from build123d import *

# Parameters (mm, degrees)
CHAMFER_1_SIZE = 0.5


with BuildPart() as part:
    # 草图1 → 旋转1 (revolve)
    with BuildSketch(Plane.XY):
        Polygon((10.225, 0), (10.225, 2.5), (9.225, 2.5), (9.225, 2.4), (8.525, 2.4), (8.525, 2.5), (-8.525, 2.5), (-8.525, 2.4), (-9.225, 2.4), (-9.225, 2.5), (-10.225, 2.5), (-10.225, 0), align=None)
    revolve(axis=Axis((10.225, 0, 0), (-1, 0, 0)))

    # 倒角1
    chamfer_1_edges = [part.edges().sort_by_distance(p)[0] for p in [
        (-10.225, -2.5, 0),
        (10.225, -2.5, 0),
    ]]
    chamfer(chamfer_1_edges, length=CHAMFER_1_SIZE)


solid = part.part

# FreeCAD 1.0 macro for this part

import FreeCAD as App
import Part
import Sketcher
Q = App.Units.Quantity


def edges_at(feature, points):
    """Names of the edges that pass closest to the given points."""
    edges = feature.Shape.Edges
    near = lambda p: min(range(len(edges)), key=lambda i: edges[i].distToShape(Part.Vertex(*p))[0])
    return sorted({f"Edge{near(p) + 1}" for p in points})

doc = App.newDocument("Part")
params = doc.addObject("Spreadsheet::Sheet", "Params")
for row, (alias, value) in enumerate([
    ("sketch1_width", "1 mm"),
    ("sketch1_width2", "0.7 mm"),
    ("sketch1_height", "2.5 mm"),
    ("sketch1_height2", "0.1 mm"),
    ("sketch1_width3", "17.05 mm"),
    ("revolution_angle", "360 deg"),
    ("chamfer_size", "0.5 mm"),
], start=1):
    params.set(f"A{row}", alias)
    params.set(f"B{row}", "=" + value)
    params.setAlias(f"B{row}", alias)

body = doc.addObject("PartDesign::Body", "Body")

# Sketch on XY plane
sketch1 = doc.addObject("Sketcher::SketchObject", "Sketch")
body.addObject(sketch1)
sketch1.AttachmentSupport = (doc.XY_Plane, [""])
sketch1.MapMode = "FlatFace"
sketch1.addGeometry([
    Part.LineSegment(App.Vector(10.22, 0, 0), App.Vector(10.22, 2.5, 0)),  # 0
    Part.LineSegment(App.Vector(10.22, 2.5, 0), App.Vector(9.22, 2.5, 0)),  # 1
    Part.LineSegment(App.Vector(9.22, 2.5, 0), App.Vector(9.22, 2.4, 0)),  # 2
    Part.LineSegment(App.Vector(9.22, 2.4, 0), App.Vector(8.53, 2.4, 0)),  # 3
    Part.LineSegment(App.Vector(8.53, 2.4, 0), App.Vector(8.53, 2.5, 0)),  # 4
    Part.LineSegment(App.Vector(8.53, 2.5, 0), App.Vector(-8.53, 2.5, 0)),  # 5
    Part.LineSegment(App.Vector(-8.53, 2.5, 0), App.Vector(-8.53, 2.4, 0)),  # 6
    Part.LineSegment(App.Vector(-8.53, 2.4, 0), App.Vector(-9.22, 2.4, 0)),  # 7
    Part.LineSegment(App.Vector(-9.22, 2.4, 0), App.Vector(-9.22, 2.5, 0)),  # 8
    Part.LineSegment(App.Vector(-9.22, 2.5, 0), App.Vector(-10.22, 2.5, 0)),  # 9
    Part.LineSegment(App.Vector(-10.22, 2.5, 0), App.Vector(-10.22, 0, 0)),  # 10
    Part.LineSegment(App.Vector(-10.22, 0, 0), App.Vector(10.22, 0, 0)),  # 11
], False)
sketch1.addConstraint([
    Sketcher.Constraint("Coincident", 0, 2, 1, 1),
    Sketcher.Constraint("Coincident", 1, 2, 2, 1),
    Sketcher.Constraint("Coincident", 2, 2, 3, 1),
    Sketcher.Constraint("Coincident", 3, 2, 4, 1),
    Sketcher.Constraint("Coincident", 4, 2, 5, 1),
    Sketcher.Constraint("Coincident", 5, 2, 6, 1),
    Sketcher.Constraint("Coincident", 6, 2, 7, 1),
    Sketcher.Constraint("Coincident", 7, 2, 8, 1),
    Sketcher.Constraint("Coincident", 8, 2, 9, 1),
    Sketcher.Constraint("Coincident", 9, 2, 10, 1),
    Sketcher.Constraint("Coincident", 10, 2, 11, 1),
    Sketcher.Constraint("Coincident", 11, 2, 0, 1),
    Sketcher.Constraint("Vertical", 0),
    Sketcher.Constraint("Horizontal", 1),
    Sketcher.Constraint("Vertical", 2),
    Sketcher.Constraint("Horizontal", 3),
    Sketcher.Constraint("Vertical", 4),
    Sketcher.Constraint("Horizontal", 5),
    Sketcher.Constraint("Vertical", 6),
    Sketcher.Constraint("Horizontal", 7),
    Sketcher.Constraint("Vertical", 8),
    Sketcher.Constraint("Horizontal", 9),
    Sketcher.Constraint("Vertical", 10),
    Sketcher.Constraint("Horizontal", 11),
    Sketcher.Constraint("Symmetric", 10, 2, 11, 2, -1, 1),
    Sketcher.Constraint("Symmetric", 3, 2, 6, 2, -2),
    Sketcher.Constraint("Symmetric", 1, 2, 8, 2, -2),
    Sketcher.Constraint("Horizontal", 1, 2, 4, 2),
    Sketcher.Constraint("DistanceX", 1, 2, 1, 1, Q("1 mm")),
    Sketcher.Constraint("DistanceX", 3, 2, 3, 1, Q("0.7 mm")),
    Sketcher.Constraint("DistanceY", 0, 1, 0, 2, Q("2.5 mm")),
    Sketcher.Constraint("DistanceY", 2, 2, 2, 1, Q("0.1 mm")),
    Sketcher.Constraint("DistanceX", 5, 2, 5, 1, Q("17.05 mm")),
])
sketch1.setExpression("Constraints[28]", "Params.sketch1_width")
sketch1.setExpression("Constraints[29]", "Params.sketch1_width2")
sketch1.setExpression("Constraints[30]", "Params.sketch1_height")
sketch1.setExpression("Constraints[31]", "Params.sketch1_height2")
sketch1.setExpression("Constraints[32]", "Params.sketch1_width3")
revolution = doc.addObject("PartDesign::Revolution", "Revolution")
body.addObject(revolution)
revolution.Profile = sketch1
revolution.ReferenceAxis = (sketch1, ["H_Axis"])
revolution.setExpression("Angle", "Params.revolution_angle")
doc.recompute()

chamfer = doc.addObject("PartDesign::Chamfer", "Chamfer")
body.addObject(chamfer)
chamfer.Base = (revolution, edges_at(revolution, [(-10.225, -2.5, 0), (10.225, -2.5, 0)]))
chamfer.setExpression("Size", "Params.chamfer_size")

doc.recompute()
